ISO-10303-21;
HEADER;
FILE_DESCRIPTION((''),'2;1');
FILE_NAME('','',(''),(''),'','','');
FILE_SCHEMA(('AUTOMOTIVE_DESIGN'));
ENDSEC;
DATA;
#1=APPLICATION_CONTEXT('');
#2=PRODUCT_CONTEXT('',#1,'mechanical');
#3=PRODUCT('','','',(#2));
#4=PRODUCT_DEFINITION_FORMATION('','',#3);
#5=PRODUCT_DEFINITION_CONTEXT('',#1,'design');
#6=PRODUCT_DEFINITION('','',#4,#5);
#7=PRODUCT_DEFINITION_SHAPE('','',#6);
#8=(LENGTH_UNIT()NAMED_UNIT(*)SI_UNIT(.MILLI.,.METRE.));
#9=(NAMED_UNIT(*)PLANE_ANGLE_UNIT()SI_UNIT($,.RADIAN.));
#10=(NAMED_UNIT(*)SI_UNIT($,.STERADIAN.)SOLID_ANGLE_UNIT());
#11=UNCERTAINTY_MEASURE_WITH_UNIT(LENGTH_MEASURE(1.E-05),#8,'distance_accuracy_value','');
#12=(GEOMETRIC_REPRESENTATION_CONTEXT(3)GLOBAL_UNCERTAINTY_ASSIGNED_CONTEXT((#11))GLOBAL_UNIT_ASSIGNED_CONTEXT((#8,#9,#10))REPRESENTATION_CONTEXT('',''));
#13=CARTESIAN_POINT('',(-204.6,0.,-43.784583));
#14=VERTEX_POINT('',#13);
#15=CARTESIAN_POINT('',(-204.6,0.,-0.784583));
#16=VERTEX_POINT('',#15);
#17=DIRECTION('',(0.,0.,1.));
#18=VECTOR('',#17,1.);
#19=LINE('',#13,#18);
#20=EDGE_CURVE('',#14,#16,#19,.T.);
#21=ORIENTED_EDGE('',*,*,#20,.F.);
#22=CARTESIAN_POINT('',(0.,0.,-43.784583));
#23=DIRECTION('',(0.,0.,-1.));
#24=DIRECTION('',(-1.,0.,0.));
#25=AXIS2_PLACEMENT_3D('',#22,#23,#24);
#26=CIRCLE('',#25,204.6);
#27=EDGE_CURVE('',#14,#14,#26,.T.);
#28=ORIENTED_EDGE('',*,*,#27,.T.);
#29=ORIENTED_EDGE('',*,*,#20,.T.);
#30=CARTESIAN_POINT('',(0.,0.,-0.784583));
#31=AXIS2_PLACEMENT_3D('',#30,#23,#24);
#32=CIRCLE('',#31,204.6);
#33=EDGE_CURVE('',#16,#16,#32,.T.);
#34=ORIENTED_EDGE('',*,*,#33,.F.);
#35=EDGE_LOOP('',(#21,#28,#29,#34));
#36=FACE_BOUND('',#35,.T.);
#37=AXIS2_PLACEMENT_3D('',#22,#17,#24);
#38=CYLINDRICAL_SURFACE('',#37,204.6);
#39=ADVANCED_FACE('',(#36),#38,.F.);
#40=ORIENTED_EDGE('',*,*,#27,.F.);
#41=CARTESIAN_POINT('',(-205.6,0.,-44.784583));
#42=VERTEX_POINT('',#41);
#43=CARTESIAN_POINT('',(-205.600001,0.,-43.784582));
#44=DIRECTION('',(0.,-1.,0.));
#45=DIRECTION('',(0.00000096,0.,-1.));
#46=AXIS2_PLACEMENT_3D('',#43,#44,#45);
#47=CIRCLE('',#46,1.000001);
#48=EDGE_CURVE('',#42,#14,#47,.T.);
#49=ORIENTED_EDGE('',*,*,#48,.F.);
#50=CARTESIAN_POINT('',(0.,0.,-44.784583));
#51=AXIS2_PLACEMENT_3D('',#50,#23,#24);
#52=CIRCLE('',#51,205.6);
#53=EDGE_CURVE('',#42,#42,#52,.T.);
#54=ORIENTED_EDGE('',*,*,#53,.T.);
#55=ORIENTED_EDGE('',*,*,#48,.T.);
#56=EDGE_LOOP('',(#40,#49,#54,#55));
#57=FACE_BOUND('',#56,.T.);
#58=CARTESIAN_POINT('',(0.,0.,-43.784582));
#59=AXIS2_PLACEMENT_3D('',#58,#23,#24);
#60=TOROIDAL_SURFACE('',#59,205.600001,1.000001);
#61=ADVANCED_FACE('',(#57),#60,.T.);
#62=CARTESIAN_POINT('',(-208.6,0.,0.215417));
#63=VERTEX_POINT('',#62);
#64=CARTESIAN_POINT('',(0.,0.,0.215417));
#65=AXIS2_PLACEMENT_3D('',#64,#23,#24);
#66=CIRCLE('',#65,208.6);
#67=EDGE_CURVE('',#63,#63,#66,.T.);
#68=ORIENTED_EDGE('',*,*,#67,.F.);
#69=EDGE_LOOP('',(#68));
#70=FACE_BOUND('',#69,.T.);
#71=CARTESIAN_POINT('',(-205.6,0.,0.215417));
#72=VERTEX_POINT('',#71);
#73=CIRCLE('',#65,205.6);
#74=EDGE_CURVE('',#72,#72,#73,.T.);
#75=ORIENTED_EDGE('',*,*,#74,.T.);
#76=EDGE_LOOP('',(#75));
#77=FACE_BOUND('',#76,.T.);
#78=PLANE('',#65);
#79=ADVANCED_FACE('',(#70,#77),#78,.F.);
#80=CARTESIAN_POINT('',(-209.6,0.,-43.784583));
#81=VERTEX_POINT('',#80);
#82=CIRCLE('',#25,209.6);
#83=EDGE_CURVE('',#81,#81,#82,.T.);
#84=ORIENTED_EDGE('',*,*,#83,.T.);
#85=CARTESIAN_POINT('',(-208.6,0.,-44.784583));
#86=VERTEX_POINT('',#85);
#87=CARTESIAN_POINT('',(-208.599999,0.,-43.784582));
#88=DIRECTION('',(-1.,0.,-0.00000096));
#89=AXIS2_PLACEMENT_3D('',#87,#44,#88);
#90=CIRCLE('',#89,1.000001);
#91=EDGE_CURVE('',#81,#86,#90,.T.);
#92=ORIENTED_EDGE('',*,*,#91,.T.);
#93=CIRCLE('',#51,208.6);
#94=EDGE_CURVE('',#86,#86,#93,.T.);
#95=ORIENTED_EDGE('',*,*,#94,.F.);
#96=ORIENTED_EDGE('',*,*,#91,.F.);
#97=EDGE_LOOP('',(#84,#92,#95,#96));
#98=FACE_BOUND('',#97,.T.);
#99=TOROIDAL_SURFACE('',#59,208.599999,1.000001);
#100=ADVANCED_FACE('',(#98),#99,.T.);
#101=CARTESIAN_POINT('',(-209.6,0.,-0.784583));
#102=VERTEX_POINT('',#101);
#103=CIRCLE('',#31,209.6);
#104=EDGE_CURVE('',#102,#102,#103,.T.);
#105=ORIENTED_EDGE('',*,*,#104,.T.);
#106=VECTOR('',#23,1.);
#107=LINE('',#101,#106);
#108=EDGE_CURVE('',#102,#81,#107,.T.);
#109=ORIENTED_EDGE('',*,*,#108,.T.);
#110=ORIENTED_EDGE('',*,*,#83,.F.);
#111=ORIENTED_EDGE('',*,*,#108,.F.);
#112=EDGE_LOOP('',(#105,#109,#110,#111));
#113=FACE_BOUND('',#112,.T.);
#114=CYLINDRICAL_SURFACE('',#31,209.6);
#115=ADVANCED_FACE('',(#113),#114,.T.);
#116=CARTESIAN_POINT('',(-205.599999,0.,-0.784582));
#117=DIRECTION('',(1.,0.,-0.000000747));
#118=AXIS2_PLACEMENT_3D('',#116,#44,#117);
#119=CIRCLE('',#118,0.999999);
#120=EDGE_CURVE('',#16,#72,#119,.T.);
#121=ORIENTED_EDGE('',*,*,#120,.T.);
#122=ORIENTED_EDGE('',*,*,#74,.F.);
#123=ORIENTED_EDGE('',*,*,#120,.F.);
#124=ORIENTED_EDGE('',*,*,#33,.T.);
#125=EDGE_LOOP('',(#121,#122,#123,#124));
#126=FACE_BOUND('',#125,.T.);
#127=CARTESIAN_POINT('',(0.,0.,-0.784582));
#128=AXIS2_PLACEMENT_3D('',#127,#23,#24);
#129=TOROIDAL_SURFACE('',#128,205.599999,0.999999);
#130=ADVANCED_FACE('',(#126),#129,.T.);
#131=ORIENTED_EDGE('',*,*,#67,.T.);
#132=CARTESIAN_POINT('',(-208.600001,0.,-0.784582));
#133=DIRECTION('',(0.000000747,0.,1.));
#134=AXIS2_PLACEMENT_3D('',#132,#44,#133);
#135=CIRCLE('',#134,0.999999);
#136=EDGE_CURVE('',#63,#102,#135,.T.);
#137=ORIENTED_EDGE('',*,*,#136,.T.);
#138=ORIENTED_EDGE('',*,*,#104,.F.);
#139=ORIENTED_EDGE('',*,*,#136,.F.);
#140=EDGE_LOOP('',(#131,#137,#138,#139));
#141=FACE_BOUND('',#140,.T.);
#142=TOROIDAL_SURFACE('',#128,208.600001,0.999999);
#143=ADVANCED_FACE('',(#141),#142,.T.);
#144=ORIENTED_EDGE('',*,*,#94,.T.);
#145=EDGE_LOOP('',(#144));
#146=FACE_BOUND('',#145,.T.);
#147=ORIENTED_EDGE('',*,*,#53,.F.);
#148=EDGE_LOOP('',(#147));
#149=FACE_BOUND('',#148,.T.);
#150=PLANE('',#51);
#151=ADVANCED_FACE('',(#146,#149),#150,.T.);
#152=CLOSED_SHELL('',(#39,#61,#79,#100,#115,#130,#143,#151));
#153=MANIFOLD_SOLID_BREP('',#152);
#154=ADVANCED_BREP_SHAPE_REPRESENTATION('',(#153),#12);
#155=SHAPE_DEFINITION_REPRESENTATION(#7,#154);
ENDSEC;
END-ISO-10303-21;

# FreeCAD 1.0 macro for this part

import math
import FreeCAD as App
import Part
import Sketcher

V = App.Vector

doc = App.newDocument("Part")
body = doc.addObject("PartDesign::Body", "Body")

# Sketch on XZ plane
sketch1 = body.newObject("Sketcher::SketchObject", "Sketch")
sketch1.AttachmentSupport = (doc.getObject("XZ_Plane"), [""])
sketch1.MapMode = "FlatFace"
sketch1.addGeometry([
    Part.LineSegment(V(-205.6, 0.2, 0), V(-208.6, 0.2, 0)),  # 0
    Part.ArcOfCircle(Part.Circle(V(-208.6, -0.8, 0), V(0, 0, 1), 1), math.radians(90), math.radians(180)),  # 1
    Part.LineSegment(V(-209.6, -0.8, 0), V(-209.6, -43.8, 0)),  # 2
    Part.ArcOfCircle(Part.Circle(V(-208.6, -43.8, 0), V(0, 0, 1), 1), math.radians(-180), math.radians(-90)),  # 3
    Part.LineSegment(V(-208.6, -44.8, 0), V(-205.6, -44.8, 0)),  # 4
    Part.ArcOfCircle(Part.Circle(V(-205.6, -43.8, 0), V(0, 0, 1), 1), math.radians(-90), math.radians(0)),  # 5
    Part.LineSegment(V(-204.6, -43.8, 0), V(-204.6, -0.8, 0)),  # 6
    Part.ArcOfCircle(Part.Circle(V(-205.6, -0.8, 0), V(0, 0, 1), 1), math.radians(0), math.radians(90)),  # 7
], False)
sketch1.addConstraint([
    Sketcher.Constraint("Tangent", 0, 2, 1, 1),
    Sketcher.Constraint("Tangent", 1, 2, 2, 1),
    Sketcher.Constraint("Tangent", 2, 2, 3, 1),
    Sketcher.Constraint("Tangent", 3, 2, 4, 1),
    Sketcher.Constraint("Tangent", 4, 2, 5, 1),
    Sketcher.Constraint("Tangent", 5, 2, 6, 1),
    Sketcher.Constraint("Tangent", 6, 2, 7, 1),
    Sketcher.Constraint("Tangent", 7, 2, 0, 1),
    Sketcher.Constraint("Horizontal", 0),
    Sketcher.Constraint("Vertical", 2),
    Sketcher.Constraint("Horizontal", 4),
    Sketcher.Constraint("Vertical", 6),
    Sketcher.Constraint("Equal", 1, 3),
    Sketcher.Constraint("Equal", 3, 5),
    Sketcher.Constraint("Equal", 5, 7),
    Sketcher.Constraint("Radius", 1, 0.999999),
    Sketcher.Constraint("DistanceX", 0, 2, 0, 1, 3.0),
    Sketcher.Constraint("DistanceY", 2, 2, 2, 1, 43.0),
    Sketcher.Constraint("DistanceX", 1, 3, -1, 1, 208.600001),
    Sketcher.Constraint("DistanceY", 1, 3, -1, 1, 0.784582),
])
revolution = body.newObject("PartDesign::Revolution", "Revolution")
revolution.Profile = sketch1
revolution.ReferenceAxis = (sketch1, ["V_Axis"])
revolution.Angle = 360

doc.recompute()
